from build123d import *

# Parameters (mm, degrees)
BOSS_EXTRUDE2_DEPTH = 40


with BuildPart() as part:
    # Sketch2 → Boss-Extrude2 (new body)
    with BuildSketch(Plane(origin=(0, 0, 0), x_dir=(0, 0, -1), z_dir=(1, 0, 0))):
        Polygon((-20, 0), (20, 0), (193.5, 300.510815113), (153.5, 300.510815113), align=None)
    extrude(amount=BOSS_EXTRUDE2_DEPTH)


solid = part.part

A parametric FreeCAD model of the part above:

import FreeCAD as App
import Part
import Sketcher

V = App.Vector
Q = App.Units.Quantity


def add_polygon(sketch, points):
    """Adds a closed chain of lines whose ends are joined by coincident constraints."""
    first, n = sketch.GeometryCount, len(points)
    for a, b in zip(points, points[1:] + points[:1]):
        sketch.addGeometry(Part.LineSegment(App.Vector(*a, 0), App.Vector(*b, 0)), False)
    for i in range(n):
        sketch.addConstraint(Sketcher.Constraint("Coincident", first + i, 2, first + (i + 1) % n, 1))

doc = App.newDocument("Part")
body = doc.addObject("PartDesign::Body", "Body")

sketch1 = body.newObject("Sketcher::SketchObject", "Sketch")
sketch1.AttachmentSupport = (doc.getObject("YZ_Plane"), [""])
sketch1.MapMode = "FlatFace"
add_polygon(sketch1, [(0, 20), (0, -20), (301, -194), (301, -154)])
sketch1.addConstraint(Sketcher.Constraint("Vertical", 0))
sketch1.addConstraint(Sketcher.Constraint("Vertical", 2))
sketch1.addConstraint(Sketcher.Constraint("Symmetric", 0, 2, 3, 2, -1, 1))
sketch1.addConstraint(Sketcher.Constraint("Parallel", 1, 3))
sketch1.addConstraint(Sketcher.Constraint("DistanceY", 0, 2, 0, 1, Q("40 mm")))
sketch1.addConstraint(Sketcher.Constraint("Angle", 1, Q("-30 deg")))
sketch1.addConstraint(Sketcher.Constraint("Distance", 1, Q("347 mm")))
pad1 = body.newObject("PartDesign::Pad", "Pad")
pad1.Profile = sketch1
pad1.Length = 40

doc.recompute()
